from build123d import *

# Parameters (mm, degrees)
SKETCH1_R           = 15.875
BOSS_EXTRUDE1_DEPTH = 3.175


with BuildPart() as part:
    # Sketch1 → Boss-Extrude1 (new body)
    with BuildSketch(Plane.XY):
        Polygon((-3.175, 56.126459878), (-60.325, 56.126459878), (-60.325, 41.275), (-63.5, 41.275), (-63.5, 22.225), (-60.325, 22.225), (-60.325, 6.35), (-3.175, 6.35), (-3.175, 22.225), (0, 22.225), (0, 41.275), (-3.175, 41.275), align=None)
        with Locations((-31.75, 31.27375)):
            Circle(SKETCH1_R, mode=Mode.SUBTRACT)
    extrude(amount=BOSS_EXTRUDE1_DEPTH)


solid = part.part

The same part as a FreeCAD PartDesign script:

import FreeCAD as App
import Part
import Sketcher
Q = App.Units.Quantity


def add_polygon(sketch, points):
    """Adds a closed chain of lines whose ends are joined by coincident constraints."""
    first, n = sketch.GeometryCount, len(points)
    for a, b in zip(points, points[1:] + points[:1]):
        sketch.addGeometry(Part.LineSegment(App.Vector(*a, 0), App.Vector(*b, 0)), False)
    for i in range(n):
        sketch.addConstraint(Sketcher.Constraint("Coincident", first + i, 2, first + (i + 1) % n, 1))

doc = App.newDocument("Part")
body = doc.addObject("PartDesign::Body", "Body")

sketch1 = doc.addObject("Sketcher::SketchObject", "Sketch")
body.addObject(sketch1)
sketch1.AttachmentSupport = (doc.XY_Plane, [""])
sketch1.MapMode = "FlatFace"
add_polygon(sketch1, [(-3.2, 56.1), (-60.3, 56.1), (-60.3, 41.3), (-63.5, 41.3), (-63.5, 22.2), (-60.3, 22.2), (-60.3, 6.3), (-3.2, 6.3), (-3.2, 22.2), (0, 22.2), (0, 41.3), (-3.2, 41.3)])
sketch1.addGeometry(Part.Circle(App.Vector(-31.8, 31.3, 0), App.Vector(0, 0, 1), 15.9), False)
sketch1.addConstraint([
    Sketcher.Constraint("Horizontal", 0),
    Sketcher.Constraint("Vertical", 1),
    Sketcher.Constraint("Horizontal", 2),
    Sketcher.Constraint("Vertical", 3),
    Sketcher.Constraint("Horizontal", 4),
    Sketcher.Constraint("Vertical", 5),
    Sketcher.Constraint("Horizontal", 6),
    Sketcher.Constraint("Vertical", 7),
    Sketcher.Constraint("Horizontal", 8),
    Sketcher.Constraint("Vertical", 9),
    Sketcher.Constraint("Horizontal", 10),
    Sketcher.Constraint("Vertical", 11),
    Sketcher.Constraint("PointOnObject", 8, 2, -2),
    Sketcher.Constraint("Horizontal", 4, 2, 7, 2),
    Sketcher.Constraint("Horizontal", 2, 2, 9, 2),
    Sketcher.Constraint("Vertical", 1, 2, 4, 2),
    Sketcher.Constraint("Vertical", 7, 2, 10, 2),
    Sketcher.Constraint("Equal", 4, 8),
    Sketcher.Constraint("Diameter", 12, Q("1.25 in")),
    Sketcher.Constraint("DistanceX", 0, 2, 0, 1, Q("2.25 in")),
    Sketcher.Constraint("DistanceY", 3, 2, 3, 1, Q("0.75 in")),
    Sketcher.Constraint("DistanceX", 2, 2, -1, 1, Q("2.5 in")),
    Sketcher.Constraint("DistanceY", 5, 2, 5, 1, Q("0.625 in")),
    Sketcher.Constraint("DistanceX", 12, 3, -1, 1, Q("1.25 in")),
    Sketcher.Constraint("DistanceY", -1, 1, 5, 2, Q("0.25 in")),
    Sketcher.Constraint("DistanceY", 1, 2, 1, 1, 14.85146),
    Sketcher.Constraint("DistanceY", -1, 1, 12, 3, 31.27375),
])
pad1 = doc.addObject("PartDesign::Pad", "Pad")
body.addObject(pad1)
pad1.Profile = sketch1
pad1.Length = Q("0.125 in")

doc.recompute()
